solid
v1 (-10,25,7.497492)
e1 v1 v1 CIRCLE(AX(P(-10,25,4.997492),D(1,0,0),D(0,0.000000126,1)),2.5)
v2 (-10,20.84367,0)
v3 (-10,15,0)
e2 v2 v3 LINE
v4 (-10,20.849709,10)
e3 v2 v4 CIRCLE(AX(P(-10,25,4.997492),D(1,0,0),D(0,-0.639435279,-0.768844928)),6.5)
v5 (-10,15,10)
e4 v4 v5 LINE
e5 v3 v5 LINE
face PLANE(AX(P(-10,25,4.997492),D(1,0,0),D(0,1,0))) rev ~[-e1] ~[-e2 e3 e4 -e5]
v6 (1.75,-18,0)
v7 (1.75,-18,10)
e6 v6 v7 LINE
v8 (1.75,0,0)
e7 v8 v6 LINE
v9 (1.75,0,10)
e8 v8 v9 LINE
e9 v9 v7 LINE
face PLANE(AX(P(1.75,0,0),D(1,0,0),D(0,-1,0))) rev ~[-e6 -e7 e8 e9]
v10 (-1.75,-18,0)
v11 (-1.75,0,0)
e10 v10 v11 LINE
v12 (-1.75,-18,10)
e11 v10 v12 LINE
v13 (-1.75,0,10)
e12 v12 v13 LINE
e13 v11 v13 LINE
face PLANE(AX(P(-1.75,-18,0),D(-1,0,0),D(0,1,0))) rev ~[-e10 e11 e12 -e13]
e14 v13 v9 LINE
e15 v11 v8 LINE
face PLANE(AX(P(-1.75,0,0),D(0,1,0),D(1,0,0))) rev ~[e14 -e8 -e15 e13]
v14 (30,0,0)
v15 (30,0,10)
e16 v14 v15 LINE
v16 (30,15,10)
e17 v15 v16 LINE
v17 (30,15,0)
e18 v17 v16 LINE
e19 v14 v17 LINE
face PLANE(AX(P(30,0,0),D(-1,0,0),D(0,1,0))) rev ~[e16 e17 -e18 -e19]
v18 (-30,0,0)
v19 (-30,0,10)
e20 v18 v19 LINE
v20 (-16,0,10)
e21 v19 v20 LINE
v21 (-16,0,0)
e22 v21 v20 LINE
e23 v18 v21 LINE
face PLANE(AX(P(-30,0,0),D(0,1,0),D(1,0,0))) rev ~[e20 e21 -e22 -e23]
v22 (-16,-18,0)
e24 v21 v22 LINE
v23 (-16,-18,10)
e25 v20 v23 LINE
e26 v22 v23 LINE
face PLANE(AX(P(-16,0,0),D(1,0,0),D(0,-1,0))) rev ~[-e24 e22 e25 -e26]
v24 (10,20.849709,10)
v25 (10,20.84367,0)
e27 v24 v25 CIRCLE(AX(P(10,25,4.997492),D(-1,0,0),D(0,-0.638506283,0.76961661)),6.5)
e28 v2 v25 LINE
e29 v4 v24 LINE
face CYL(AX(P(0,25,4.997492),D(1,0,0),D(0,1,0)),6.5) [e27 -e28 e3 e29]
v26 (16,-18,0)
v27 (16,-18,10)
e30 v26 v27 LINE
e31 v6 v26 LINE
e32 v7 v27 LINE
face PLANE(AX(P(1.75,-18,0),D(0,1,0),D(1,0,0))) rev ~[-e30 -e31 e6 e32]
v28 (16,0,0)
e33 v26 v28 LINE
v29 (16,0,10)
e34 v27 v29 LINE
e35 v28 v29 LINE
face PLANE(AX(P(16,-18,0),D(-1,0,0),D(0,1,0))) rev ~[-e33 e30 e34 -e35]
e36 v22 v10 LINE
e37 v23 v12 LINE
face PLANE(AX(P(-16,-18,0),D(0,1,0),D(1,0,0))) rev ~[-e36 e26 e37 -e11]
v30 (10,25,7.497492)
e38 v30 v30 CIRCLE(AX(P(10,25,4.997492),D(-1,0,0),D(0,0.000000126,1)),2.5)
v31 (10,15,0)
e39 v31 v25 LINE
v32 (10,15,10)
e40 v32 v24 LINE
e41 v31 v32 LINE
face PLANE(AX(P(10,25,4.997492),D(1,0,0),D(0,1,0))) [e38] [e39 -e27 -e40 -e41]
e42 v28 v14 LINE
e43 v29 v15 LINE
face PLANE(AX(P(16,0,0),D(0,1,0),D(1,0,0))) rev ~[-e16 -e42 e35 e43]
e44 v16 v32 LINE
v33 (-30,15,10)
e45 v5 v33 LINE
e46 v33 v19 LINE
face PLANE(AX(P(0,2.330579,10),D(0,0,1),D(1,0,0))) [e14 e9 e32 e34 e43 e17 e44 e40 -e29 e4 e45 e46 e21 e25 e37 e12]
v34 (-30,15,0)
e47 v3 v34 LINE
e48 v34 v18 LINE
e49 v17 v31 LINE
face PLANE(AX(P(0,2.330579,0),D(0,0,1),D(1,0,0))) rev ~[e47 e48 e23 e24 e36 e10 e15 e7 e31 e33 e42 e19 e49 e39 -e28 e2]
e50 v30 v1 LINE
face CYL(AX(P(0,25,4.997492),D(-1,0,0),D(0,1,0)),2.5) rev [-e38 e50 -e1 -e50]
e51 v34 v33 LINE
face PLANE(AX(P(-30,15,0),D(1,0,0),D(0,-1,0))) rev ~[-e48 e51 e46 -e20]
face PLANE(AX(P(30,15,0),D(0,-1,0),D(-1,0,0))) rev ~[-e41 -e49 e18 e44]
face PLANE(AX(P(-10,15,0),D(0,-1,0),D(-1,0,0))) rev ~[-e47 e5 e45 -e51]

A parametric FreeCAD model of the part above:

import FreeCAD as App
import Part
import Sketcher


def add_polygon(sketch, points):
    """Adds a closed chain of lines whose ends are joined by coincident constraints."""
    first, n = sketch.GeometryCount, len(points)
    for a, b in zip(points, points[1:] + points[:1]):
        sketch.addGeometry(Part.LineSegment(App.Vector(*a, 0), App.Vector(*b, 0)), False)
    for i in range(n):
        sketch.addConstraint(Sketcher.Constraint("Coincident", first + i, 2, first + (i + 1) % n, 1))

doc = App.newDocument("Part")
params = doc.addObject("Spreadsheet::Sheet", "Params")
for row, (alias, value) in enumerate([
    ("sketch1_width", "14 mm"),
    ("sketch1_width2", "20 mm"),
    ("sketch1_height", "15 mm"),
    ("sketch1_height2", "18 mm"),
    ("sketch1_height3", "10 mm"),
    ("pad1_length", "10 mm"),
    ("sketch2_diameter", "13 mm"),
    ("sketch2_diameter2", "5 mm"),
    ("pad2_length", "20 mm"),
    ("sketch3_diameter", "5 mm"),
    ("pocket1_length", "25 mm"),
], start=1):
    params.set(f"A{row}", alias)
    params.set(f"B{row}", "=" + value)
    params.setAlias(f"B{row}", alias)

body = doc.addObject("PartDesign::Body", "Body")

# Sketch on XY plane
sketch1 = body.newObject("Sketcher::SketchObject", "Sketch")
sketch1.AttachmentSupport = (doc.getObject("XY_Plane"), [""])
sketch1.MapMode = "FlatFace"
add_polygon(sketch1, [(-30, 15), (-30, 0), (-16, 0), (-16, -18), (-1.8, -18), (-1.8, 0), (1.8, 0), (1.8, -18), (16, -18), (16, 0), (30, 0), (30, 15), (10, 15), (10, 25), (-10, 25), (-10, 15)])  # lines 0-15
sketch1.addConstraint([
    Sketcher.Constraint("Vertical", 0),
    Sketcher.Constraint("Horizontal", 1),
    Sketcher.Constraint("Vertical", 2),
    Sketcher.Constraint("Horizontal", 3),
    Sketcher.Constraint("Vertical", 4),
    Sketcher.Constraint("Horizontal", 5),
    Sketcher.Constraint("Vertical", 6),
    Sketcher.Constraint("Horizontal", 7),
    Sketcher.Constraint("Vertical", 8),
    Sketcher.Constraint("Horizontal", 9),
    Sketcher.Constraint("Vertical", 10),
    Sketcher.Constraint("Horizontal", 11),
    Sketcher.Constraint("Vertical", 12),
    Sketcher.Constraint("Horizontal", 13),
    Sketcher.Constraint("Vertical", 14),
    Sketcher.Constraint("Horizontal", 15),
    Sketcher.Constraint("Symmetric", 4, 2, 5, 2, -1, 1),
    Sketcher.Constraint("Symmetric", 1, 2, 8, 2, -1, 1),
    Sketcher.Constraint("Symmetric", 0, 2, 9, 2, -2),
    Sketcher.Constraint("Symmetric", 11, 2, 14, 2, -2),
    Sketcher.Constraint("Horizontal", 3, 2, 6, 2),
    Sketcher.Constraint("Equal", 11, 13),
    Sketcher.Constraint("DistanceX", 1, 1, 1, 2, 14.0),
    Sketcher.Constraint("DistanceX", 11, 2, 11, 1, 20.0),
    Sketcher.Constraint("DistanceY", 0, 2, 0, 1, 15.0),
    Sketcher.Constraint("DistanceY", 2, 2, 2, 1, 18.0),
    Sketcher.Constraint("DistanceY", 12, 1, 12, 2, 10.0),
    Sketcher.Constraint("DistanceX", 5, 1, 5, 2, 3.5),
])
sketch1.setExpression("Constraints[38]", "Params.sketch1_width")
sketch1.setExpression("Constraints[39]", "Params.sketch1_width2")
sketch1.setExpression("Constraints[40]", "Params.sketch1_height")
sketch1.setExpression("Constraints[41]", "Params.sketch1_height2")
sketch1.setExpression("Constraints[42]", "Params.sketch1_height3")
pad1 = body.newObject("PartDesign::Pad", "Pad")
pad1.Profile = sketch1
pad1.setExpression("Length", "Params.pad1_length")

# Sketch on YZ plane
sketch2 = body.newObject("Sketcher::SketchObject", "Sketch001")
sketch2.AttachmentSupport = (doc.getObject("YZ_Plane"), [""])
sketch2.MapMode = "FlatFace"
sketch2.addGeometry([
    Part.Circle(App.Vector(25, 5, 0), App.Vector(0, 0, 1), 6.5),
    Part.Circle(App.Vector(25, 5, 0), App.Vector(0, 0, 1), 2.5),
], False)
sketch2.addConstraint([
    Sketcher.Constraint("Coincident", 1, 3, 0, 3),
    Sketcher.Constraint("Diameter", 0, 13.0),
    Sketcher.Constraint("Diameter", 1, 5.0),
    Sketcher.Constraint("DistanceX", -1, 1, 0, 3, 25.0),
    Sketcher.Constraint("DistanceY", -1, 1, 0, 3, 4.997492),
])
sketch2.setExpression("Constraints[1]", "Params.sketch2_diameter")
sketch2.setExpression("Constraints[2]", "Params.sketch2_diameter2")
pad2 = body.newObject("PartDesign::Pad", "Pad001")
pad2.Profile = sketch2
pad2.setExpression("Length", "Params.pad2_length")
pad2.Midplane = True

# Sketch on YZ plane
sketch3 = body.newObject("Sketcher::SketchObject", "Sketch002")
sketch3.AttachmentSupport = (doc.getObject("YZ_Plane"), [""])
sketch3.MapMode = "FlatFace"
sketch3.addGeometry(Part.Circle(App.Vector(25, 5, 0), App.Vector(0, 0, 1), 2.5), False)
sketch3.addConstraint([
    Sketcher.Constraint("Diameter", 0, 5.0),
    Sketcher.Constraint("DistanceX", -1, 1, 0, 3, 25.0),
    Sketcher.Constraint("DistanceY", -1, 1, 0, 3, 4.997492),
])
sketch3.setExpression("Constraints[0]", "Params.sketch3_diameter")
pocket1 = body.newObject("PartDesign::Pocket", "Pocket")
pocket1.Profile = sketch3
pocket1.setExpression("Length", "Params.pocket1_length")
pocket1.Midplane = True

doc.recompute()
